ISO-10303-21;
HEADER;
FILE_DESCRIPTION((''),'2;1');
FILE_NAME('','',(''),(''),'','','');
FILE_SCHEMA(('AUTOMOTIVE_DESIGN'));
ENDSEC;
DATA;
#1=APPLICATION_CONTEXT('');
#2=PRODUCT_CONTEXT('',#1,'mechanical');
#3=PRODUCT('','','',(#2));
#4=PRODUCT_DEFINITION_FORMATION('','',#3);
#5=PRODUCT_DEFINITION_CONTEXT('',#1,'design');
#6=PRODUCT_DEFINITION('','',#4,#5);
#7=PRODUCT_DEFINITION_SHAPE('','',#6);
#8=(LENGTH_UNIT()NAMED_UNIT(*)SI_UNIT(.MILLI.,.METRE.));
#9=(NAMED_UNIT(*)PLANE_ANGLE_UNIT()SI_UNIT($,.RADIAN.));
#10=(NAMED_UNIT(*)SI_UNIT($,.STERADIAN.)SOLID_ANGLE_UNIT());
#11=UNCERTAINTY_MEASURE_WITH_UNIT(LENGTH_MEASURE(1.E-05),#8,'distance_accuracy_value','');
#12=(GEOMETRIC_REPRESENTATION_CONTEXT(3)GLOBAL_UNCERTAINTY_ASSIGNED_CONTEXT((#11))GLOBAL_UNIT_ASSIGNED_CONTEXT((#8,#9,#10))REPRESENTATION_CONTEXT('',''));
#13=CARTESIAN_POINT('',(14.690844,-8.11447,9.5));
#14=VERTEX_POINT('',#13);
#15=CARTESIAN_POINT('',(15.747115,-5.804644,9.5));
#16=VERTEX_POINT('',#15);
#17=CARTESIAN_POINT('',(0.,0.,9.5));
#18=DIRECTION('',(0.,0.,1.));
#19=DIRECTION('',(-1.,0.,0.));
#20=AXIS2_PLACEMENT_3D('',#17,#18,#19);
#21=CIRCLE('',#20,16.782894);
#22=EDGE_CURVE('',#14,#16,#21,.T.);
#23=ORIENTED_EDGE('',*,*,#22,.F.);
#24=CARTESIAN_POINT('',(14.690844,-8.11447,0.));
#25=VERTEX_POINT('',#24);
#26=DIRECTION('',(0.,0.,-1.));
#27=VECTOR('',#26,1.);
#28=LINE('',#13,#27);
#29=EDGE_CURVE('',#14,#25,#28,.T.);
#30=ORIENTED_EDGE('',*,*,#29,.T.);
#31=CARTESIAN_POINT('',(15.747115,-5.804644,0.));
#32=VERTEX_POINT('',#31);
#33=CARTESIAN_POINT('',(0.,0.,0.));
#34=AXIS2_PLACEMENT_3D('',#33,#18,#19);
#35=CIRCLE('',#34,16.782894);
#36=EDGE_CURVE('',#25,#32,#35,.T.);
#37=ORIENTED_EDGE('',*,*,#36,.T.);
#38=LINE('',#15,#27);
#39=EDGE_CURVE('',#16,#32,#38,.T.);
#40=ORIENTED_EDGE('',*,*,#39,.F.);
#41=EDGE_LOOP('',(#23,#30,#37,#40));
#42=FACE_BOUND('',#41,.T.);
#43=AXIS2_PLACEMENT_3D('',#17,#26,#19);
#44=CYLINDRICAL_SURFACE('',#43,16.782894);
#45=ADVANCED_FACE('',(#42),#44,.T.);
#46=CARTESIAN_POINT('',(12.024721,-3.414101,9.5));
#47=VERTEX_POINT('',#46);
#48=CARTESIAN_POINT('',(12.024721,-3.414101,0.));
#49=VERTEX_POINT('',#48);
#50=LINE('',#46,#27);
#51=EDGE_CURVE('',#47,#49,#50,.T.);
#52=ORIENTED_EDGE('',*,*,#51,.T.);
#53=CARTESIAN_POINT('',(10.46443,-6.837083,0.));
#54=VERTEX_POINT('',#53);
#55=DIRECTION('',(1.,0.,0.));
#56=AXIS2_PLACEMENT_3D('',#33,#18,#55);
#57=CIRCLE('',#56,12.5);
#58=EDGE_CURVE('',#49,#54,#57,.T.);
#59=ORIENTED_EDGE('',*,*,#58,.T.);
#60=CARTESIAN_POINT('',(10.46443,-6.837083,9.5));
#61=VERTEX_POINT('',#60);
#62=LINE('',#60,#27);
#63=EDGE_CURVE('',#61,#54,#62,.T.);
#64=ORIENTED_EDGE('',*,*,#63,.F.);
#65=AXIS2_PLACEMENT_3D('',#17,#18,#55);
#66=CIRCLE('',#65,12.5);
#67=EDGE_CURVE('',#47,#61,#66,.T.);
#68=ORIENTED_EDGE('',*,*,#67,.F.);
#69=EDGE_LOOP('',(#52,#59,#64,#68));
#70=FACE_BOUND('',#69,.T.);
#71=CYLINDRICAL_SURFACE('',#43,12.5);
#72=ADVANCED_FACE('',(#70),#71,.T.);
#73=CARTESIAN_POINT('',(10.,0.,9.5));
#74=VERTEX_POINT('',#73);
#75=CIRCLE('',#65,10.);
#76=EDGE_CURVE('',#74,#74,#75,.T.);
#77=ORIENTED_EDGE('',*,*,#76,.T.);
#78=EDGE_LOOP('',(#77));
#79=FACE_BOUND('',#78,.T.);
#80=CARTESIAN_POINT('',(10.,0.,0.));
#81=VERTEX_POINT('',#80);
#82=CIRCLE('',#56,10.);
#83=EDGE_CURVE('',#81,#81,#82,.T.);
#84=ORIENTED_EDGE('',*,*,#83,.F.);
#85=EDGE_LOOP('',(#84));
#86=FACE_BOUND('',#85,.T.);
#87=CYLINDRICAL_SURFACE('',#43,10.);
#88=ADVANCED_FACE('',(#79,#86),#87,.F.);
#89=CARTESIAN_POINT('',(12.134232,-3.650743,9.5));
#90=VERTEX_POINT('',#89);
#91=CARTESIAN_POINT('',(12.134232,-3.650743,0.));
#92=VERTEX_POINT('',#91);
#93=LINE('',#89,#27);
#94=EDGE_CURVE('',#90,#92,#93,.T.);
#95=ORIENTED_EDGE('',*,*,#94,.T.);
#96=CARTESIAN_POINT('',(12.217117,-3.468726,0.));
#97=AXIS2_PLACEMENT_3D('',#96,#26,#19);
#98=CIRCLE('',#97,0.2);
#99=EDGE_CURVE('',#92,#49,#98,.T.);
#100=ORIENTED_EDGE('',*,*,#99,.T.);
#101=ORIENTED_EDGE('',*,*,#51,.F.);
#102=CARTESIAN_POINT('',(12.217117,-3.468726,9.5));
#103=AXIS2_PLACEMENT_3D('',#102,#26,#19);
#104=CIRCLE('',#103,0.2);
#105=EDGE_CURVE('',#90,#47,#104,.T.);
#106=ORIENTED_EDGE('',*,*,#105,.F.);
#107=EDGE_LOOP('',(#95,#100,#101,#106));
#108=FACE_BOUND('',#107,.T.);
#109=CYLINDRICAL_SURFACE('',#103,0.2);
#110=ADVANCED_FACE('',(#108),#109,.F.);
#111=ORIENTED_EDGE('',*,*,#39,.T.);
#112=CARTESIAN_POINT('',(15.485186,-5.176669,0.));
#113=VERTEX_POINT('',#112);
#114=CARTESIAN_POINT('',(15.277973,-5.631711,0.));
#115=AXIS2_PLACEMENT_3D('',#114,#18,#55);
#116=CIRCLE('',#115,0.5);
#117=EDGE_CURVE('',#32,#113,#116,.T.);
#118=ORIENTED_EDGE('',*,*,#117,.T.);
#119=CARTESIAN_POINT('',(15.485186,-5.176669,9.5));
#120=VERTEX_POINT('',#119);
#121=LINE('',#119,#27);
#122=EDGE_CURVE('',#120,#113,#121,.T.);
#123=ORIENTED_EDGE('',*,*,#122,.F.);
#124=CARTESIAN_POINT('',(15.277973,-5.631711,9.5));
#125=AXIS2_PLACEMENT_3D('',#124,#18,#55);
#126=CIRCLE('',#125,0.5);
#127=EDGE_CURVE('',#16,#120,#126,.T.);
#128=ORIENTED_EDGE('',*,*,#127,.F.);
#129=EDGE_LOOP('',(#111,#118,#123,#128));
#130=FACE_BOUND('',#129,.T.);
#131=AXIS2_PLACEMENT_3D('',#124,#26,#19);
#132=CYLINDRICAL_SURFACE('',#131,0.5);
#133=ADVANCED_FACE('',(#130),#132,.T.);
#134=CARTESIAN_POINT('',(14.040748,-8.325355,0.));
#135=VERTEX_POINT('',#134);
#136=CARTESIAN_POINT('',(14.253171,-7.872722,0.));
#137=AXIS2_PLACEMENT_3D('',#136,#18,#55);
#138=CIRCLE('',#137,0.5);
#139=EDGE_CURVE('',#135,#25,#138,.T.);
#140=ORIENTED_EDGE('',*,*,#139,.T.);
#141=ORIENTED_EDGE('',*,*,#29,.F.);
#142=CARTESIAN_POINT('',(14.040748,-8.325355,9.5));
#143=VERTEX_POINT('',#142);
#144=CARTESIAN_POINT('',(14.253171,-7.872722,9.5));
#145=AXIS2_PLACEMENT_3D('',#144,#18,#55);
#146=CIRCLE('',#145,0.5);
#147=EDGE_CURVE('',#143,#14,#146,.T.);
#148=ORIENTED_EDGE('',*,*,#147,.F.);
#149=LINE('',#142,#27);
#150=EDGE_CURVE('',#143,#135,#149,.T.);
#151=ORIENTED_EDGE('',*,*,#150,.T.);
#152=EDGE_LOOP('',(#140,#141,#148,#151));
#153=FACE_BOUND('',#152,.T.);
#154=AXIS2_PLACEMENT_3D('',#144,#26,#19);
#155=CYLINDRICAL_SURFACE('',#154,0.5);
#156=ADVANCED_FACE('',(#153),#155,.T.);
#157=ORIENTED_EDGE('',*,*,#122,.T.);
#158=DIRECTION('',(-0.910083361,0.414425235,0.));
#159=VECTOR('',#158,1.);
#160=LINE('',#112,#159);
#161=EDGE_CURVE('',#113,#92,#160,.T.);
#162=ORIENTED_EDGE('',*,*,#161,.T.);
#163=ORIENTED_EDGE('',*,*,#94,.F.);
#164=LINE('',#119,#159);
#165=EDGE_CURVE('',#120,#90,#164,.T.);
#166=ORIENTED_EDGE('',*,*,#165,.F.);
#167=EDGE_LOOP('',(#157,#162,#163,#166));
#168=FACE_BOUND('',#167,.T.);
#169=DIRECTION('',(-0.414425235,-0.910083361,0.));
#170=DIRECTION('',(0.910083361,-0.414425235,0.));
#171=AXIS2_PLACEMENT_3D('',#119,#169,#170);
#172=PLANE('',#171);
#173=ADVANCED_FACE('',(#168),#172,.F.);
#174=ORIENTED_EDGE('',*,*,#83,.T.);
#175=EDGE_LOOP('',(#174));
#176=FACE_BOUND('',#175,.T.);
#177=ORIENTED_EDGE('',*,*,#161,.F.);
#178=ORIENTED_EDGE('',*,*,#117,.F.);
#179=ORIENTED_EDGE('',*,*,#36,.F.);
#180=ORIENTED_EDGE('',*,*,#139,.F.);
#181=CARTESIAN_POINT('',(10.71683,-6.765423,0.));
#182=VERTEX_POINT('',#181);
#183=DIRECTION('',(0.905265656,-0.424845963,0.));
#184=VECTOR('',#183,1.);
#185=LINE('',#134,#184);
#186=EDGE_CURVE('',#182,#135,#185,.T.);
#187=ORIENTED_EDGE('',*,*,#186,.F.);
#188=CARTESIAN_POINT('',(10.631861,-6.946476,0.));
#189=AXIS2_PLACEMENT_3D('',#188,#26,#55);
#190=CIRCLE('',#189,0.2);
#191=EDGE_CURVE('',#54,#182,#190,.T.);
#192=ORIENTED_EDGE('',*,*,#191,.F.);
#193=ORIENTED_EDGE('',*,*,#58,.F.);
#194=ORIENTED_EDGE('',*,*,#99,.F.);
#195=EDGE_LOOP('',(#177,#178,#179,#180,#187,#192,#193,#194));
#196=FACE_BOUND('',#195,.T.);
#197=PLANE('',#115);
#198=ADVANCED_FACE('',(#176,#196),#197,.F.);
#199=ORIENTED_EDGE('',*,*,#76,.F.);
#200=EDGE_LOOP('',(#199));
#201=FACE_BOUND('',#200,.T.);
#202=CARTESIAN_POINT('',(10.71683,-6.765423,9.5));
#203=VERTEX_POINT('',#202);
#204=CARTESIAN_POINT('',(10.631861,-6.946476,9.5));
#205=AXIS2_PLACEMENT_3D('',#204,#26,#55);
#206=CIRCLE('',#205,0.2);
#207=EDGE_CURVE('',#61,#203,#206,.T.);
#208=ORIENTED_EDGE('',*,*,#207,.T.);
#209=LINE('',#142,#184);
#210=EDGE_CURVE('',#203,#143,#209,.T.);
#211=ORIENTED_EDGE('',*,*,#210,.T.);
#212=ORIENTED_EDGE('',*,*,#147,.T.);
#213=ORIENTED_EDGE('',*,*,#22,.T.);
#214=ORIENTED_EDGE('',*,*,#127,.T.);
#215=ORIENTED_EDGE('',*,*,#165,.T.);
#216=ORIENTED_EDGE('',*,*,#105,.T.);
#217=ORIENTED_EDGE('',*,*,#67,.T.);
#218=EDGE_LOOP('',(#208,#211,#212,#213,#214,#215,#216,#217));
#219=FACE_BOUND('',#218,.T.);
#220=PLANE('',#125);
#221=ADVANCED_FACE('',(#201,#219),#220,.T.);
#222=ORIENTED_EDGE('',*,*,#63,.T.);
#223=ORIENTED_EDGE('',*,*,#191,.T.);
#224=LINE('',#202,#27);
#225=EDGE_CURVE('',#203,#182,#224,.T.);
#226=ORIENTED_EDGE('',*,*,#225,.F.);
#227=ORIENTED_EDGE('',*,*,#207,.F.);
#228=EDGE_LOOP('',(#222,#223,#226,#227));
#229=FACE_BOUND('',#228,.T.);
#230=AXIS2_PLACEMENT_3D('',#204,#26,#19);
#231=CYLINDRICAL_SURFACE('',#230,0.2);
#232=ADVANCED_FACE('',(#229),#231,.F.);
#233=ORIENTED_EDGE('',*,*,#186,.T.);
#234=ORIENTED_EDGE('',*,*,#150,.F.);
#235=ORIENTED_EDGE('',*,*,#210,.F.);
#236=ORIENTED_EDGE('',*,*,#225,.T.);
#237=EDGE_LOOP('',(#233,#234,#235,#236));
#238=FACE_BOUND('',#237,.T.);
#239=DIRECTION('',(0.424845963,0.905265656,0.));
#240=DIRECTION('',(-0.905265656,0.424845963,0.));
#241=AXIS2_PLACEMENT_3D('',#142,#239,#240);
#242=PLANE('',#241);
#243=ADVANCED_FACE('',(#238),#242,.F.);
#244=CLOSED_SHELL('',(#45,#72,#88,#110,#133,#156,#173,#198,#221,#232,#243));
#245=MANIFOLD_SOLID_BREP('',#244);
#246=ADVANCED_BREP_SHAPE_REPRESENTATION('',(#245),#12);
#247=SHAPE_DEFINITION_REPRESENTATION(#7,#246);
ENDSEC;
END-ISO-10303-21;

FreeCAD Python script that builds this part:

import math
import FreeCAD as App
import Part
import Sketcher
from FreeCAD import Vector
Q = App.Units.Quantity

doc = App.newDocument("Part")
params = doc.addObject("Spreadsheet::Sheet", "Params")
for row, (alias, value) in enumerate([
    ("sketch1_diameter", "20 mm"),
    ("sketch1_radius", "0.2 mm"),
    ("sketch1_radius2", "12.5 mm"),
    ("sketch1_radius3", "0.5 mm"),
    ("pad1_length", "9.5 mm"),
], start=1):
    params.set(f"A{row}", alias)
    params.set(f"B{row}", "=" + value)
    params.setAlias(f"B{row}", alias)

body = doc.addObject("PartDesign::Body", "Body")

# Sketch on XY plane
sketch1 = body.newObject("Sketcher::SketchObject", "Sketch")
sketch1.AttachmentSupport = (doc.getObject("XY_Plane"), [""])
sketch1.MapMode = "FlatFace"
sketch1.addGeometry([
    Part.LineSegment(Vector(15.49, -5.18, 0), Vector(12.13, -3.65, 0)),  # 0
    Part.ArcOfCircle(Part.Circle(Vector(12.22, -3.47, 0), Vector(0, 0, 1), 0.2), math.radians(164), math.radians(246)),  # 1
    Part.ArcOfCircle(Part.Circle(Vector(0, 0, 0), Vector(0, 0, 1), 12.5), math.radians(-16), math.radians(327)),  # 2
    Part.ArcOfCircle(Part.Circle(Vector(10.63, -6.95, 0), Vector(0, 0, 1), 0.2), math.radians(65), math.radians(147)),  # 3
    Part.LineSegment(Vector(10.72, -6.77, 0), Vector(14.04, -8.33, 0)),  # 4
    Part.ArcOfCircle(Part.Circle(Vector(14.25, -7.87, 0), Vector(0, 0, 1), 0.5), math.radians(-115), math.radians(-29)),  # 5
    Part.ArcOfCircle(Part.Circle(Vector(0, 0, 0), Vector(0, 0, 1), 16.78), math.radians(-28.91), math.radians(-20.23)),  # 6
    Part.ArcOfCircle(Part.Circle(Vector(15.28, -5.63, 0), Vector(0, 0, 1), 0.5), math.radians(-20), math.radians(66)),  # 7
    Part.Circle(Vector(0, 0, 0), Vector(0, 0, 1), 10),  # 8
], False)
sketch1.addConstraint([
    Sketcher.Constraint("Tangent", 0, 2, 1, 2),
    Sketcher.Constraint("Tangent", 1, 1, 2, 1),
    Sketcher.Constraint("Tangent", 2, 2, 3, 2),
    Sketcher.Constraint("Tangent", 3, 1, 4, 1),
    Sketcher.Constraint("Tangent", 4, 2, 5, 1),
    Sketcher.Constraint("Tangent", 5, 2, 6, 1),
    Sketcher.Constraint("Tangent", 6, 2, 7, 1),
    Sketcher.Constraint("Tangent", 7, 2, 0, 1),
    Sketcher.Constraint("Coincident", 2, 3, -1, 1),
    Sketcher.Constraint("Coincident", 6, 3, -1, 1),
    Sketcher.Constraint("Coincident", 8, 3, -1, 1),
    Sketcher.Constraint("Equal", 1, 3),
    Sketcher.Constraint("Equal", 5, 7),
    Sketcher.Constraint("Diameter", 8, Q("20 mm")),
    Sketcher.Constraint("Radius", 1, Q("0.2 mm")),
    Sketcher.Constraint("Radius", 2, Q("12.5 mm")),
    Sketcher.Constraint("Radius", 5, Q("0.5 mm")),
    Sketcher.Constraint("Radius", 6, Q("16.782894 mm")),
    Sketcher.Constraint("DistanceY", 1, 1, -1, 1, Q("3.414101 mm")),
    Sketcher.Constraint("DistanceX", 2, 2, 0, 2, Q("1.669801 mm")),
    Sketcher.Constraint("DistanceX", 2, 2, 3, 1, Q("0.2524 mm")),
    Sketcher.Constraint("DistanceY", 6, 2, 0, 2, Q("2.153901 mm")),
])
sketch1.setExpression("Constraints[13]", "Params.sketch1_diameter")
sketch1.setExpression("Constraints[14]", "Params.sketch1_radius")
sketch1.setExpression("Constraints[15]", "Params.sketch1_radius2")
sketch1.setExpression("Constraints[16]", "Params.sketch1_radius3")
pad1 = body.newObject("PartDesign::Pad", "Pad")
pad1.Profile = sketch1
pad1.setExpression("Length", "Params.pad1_length")

doc.recompute()
